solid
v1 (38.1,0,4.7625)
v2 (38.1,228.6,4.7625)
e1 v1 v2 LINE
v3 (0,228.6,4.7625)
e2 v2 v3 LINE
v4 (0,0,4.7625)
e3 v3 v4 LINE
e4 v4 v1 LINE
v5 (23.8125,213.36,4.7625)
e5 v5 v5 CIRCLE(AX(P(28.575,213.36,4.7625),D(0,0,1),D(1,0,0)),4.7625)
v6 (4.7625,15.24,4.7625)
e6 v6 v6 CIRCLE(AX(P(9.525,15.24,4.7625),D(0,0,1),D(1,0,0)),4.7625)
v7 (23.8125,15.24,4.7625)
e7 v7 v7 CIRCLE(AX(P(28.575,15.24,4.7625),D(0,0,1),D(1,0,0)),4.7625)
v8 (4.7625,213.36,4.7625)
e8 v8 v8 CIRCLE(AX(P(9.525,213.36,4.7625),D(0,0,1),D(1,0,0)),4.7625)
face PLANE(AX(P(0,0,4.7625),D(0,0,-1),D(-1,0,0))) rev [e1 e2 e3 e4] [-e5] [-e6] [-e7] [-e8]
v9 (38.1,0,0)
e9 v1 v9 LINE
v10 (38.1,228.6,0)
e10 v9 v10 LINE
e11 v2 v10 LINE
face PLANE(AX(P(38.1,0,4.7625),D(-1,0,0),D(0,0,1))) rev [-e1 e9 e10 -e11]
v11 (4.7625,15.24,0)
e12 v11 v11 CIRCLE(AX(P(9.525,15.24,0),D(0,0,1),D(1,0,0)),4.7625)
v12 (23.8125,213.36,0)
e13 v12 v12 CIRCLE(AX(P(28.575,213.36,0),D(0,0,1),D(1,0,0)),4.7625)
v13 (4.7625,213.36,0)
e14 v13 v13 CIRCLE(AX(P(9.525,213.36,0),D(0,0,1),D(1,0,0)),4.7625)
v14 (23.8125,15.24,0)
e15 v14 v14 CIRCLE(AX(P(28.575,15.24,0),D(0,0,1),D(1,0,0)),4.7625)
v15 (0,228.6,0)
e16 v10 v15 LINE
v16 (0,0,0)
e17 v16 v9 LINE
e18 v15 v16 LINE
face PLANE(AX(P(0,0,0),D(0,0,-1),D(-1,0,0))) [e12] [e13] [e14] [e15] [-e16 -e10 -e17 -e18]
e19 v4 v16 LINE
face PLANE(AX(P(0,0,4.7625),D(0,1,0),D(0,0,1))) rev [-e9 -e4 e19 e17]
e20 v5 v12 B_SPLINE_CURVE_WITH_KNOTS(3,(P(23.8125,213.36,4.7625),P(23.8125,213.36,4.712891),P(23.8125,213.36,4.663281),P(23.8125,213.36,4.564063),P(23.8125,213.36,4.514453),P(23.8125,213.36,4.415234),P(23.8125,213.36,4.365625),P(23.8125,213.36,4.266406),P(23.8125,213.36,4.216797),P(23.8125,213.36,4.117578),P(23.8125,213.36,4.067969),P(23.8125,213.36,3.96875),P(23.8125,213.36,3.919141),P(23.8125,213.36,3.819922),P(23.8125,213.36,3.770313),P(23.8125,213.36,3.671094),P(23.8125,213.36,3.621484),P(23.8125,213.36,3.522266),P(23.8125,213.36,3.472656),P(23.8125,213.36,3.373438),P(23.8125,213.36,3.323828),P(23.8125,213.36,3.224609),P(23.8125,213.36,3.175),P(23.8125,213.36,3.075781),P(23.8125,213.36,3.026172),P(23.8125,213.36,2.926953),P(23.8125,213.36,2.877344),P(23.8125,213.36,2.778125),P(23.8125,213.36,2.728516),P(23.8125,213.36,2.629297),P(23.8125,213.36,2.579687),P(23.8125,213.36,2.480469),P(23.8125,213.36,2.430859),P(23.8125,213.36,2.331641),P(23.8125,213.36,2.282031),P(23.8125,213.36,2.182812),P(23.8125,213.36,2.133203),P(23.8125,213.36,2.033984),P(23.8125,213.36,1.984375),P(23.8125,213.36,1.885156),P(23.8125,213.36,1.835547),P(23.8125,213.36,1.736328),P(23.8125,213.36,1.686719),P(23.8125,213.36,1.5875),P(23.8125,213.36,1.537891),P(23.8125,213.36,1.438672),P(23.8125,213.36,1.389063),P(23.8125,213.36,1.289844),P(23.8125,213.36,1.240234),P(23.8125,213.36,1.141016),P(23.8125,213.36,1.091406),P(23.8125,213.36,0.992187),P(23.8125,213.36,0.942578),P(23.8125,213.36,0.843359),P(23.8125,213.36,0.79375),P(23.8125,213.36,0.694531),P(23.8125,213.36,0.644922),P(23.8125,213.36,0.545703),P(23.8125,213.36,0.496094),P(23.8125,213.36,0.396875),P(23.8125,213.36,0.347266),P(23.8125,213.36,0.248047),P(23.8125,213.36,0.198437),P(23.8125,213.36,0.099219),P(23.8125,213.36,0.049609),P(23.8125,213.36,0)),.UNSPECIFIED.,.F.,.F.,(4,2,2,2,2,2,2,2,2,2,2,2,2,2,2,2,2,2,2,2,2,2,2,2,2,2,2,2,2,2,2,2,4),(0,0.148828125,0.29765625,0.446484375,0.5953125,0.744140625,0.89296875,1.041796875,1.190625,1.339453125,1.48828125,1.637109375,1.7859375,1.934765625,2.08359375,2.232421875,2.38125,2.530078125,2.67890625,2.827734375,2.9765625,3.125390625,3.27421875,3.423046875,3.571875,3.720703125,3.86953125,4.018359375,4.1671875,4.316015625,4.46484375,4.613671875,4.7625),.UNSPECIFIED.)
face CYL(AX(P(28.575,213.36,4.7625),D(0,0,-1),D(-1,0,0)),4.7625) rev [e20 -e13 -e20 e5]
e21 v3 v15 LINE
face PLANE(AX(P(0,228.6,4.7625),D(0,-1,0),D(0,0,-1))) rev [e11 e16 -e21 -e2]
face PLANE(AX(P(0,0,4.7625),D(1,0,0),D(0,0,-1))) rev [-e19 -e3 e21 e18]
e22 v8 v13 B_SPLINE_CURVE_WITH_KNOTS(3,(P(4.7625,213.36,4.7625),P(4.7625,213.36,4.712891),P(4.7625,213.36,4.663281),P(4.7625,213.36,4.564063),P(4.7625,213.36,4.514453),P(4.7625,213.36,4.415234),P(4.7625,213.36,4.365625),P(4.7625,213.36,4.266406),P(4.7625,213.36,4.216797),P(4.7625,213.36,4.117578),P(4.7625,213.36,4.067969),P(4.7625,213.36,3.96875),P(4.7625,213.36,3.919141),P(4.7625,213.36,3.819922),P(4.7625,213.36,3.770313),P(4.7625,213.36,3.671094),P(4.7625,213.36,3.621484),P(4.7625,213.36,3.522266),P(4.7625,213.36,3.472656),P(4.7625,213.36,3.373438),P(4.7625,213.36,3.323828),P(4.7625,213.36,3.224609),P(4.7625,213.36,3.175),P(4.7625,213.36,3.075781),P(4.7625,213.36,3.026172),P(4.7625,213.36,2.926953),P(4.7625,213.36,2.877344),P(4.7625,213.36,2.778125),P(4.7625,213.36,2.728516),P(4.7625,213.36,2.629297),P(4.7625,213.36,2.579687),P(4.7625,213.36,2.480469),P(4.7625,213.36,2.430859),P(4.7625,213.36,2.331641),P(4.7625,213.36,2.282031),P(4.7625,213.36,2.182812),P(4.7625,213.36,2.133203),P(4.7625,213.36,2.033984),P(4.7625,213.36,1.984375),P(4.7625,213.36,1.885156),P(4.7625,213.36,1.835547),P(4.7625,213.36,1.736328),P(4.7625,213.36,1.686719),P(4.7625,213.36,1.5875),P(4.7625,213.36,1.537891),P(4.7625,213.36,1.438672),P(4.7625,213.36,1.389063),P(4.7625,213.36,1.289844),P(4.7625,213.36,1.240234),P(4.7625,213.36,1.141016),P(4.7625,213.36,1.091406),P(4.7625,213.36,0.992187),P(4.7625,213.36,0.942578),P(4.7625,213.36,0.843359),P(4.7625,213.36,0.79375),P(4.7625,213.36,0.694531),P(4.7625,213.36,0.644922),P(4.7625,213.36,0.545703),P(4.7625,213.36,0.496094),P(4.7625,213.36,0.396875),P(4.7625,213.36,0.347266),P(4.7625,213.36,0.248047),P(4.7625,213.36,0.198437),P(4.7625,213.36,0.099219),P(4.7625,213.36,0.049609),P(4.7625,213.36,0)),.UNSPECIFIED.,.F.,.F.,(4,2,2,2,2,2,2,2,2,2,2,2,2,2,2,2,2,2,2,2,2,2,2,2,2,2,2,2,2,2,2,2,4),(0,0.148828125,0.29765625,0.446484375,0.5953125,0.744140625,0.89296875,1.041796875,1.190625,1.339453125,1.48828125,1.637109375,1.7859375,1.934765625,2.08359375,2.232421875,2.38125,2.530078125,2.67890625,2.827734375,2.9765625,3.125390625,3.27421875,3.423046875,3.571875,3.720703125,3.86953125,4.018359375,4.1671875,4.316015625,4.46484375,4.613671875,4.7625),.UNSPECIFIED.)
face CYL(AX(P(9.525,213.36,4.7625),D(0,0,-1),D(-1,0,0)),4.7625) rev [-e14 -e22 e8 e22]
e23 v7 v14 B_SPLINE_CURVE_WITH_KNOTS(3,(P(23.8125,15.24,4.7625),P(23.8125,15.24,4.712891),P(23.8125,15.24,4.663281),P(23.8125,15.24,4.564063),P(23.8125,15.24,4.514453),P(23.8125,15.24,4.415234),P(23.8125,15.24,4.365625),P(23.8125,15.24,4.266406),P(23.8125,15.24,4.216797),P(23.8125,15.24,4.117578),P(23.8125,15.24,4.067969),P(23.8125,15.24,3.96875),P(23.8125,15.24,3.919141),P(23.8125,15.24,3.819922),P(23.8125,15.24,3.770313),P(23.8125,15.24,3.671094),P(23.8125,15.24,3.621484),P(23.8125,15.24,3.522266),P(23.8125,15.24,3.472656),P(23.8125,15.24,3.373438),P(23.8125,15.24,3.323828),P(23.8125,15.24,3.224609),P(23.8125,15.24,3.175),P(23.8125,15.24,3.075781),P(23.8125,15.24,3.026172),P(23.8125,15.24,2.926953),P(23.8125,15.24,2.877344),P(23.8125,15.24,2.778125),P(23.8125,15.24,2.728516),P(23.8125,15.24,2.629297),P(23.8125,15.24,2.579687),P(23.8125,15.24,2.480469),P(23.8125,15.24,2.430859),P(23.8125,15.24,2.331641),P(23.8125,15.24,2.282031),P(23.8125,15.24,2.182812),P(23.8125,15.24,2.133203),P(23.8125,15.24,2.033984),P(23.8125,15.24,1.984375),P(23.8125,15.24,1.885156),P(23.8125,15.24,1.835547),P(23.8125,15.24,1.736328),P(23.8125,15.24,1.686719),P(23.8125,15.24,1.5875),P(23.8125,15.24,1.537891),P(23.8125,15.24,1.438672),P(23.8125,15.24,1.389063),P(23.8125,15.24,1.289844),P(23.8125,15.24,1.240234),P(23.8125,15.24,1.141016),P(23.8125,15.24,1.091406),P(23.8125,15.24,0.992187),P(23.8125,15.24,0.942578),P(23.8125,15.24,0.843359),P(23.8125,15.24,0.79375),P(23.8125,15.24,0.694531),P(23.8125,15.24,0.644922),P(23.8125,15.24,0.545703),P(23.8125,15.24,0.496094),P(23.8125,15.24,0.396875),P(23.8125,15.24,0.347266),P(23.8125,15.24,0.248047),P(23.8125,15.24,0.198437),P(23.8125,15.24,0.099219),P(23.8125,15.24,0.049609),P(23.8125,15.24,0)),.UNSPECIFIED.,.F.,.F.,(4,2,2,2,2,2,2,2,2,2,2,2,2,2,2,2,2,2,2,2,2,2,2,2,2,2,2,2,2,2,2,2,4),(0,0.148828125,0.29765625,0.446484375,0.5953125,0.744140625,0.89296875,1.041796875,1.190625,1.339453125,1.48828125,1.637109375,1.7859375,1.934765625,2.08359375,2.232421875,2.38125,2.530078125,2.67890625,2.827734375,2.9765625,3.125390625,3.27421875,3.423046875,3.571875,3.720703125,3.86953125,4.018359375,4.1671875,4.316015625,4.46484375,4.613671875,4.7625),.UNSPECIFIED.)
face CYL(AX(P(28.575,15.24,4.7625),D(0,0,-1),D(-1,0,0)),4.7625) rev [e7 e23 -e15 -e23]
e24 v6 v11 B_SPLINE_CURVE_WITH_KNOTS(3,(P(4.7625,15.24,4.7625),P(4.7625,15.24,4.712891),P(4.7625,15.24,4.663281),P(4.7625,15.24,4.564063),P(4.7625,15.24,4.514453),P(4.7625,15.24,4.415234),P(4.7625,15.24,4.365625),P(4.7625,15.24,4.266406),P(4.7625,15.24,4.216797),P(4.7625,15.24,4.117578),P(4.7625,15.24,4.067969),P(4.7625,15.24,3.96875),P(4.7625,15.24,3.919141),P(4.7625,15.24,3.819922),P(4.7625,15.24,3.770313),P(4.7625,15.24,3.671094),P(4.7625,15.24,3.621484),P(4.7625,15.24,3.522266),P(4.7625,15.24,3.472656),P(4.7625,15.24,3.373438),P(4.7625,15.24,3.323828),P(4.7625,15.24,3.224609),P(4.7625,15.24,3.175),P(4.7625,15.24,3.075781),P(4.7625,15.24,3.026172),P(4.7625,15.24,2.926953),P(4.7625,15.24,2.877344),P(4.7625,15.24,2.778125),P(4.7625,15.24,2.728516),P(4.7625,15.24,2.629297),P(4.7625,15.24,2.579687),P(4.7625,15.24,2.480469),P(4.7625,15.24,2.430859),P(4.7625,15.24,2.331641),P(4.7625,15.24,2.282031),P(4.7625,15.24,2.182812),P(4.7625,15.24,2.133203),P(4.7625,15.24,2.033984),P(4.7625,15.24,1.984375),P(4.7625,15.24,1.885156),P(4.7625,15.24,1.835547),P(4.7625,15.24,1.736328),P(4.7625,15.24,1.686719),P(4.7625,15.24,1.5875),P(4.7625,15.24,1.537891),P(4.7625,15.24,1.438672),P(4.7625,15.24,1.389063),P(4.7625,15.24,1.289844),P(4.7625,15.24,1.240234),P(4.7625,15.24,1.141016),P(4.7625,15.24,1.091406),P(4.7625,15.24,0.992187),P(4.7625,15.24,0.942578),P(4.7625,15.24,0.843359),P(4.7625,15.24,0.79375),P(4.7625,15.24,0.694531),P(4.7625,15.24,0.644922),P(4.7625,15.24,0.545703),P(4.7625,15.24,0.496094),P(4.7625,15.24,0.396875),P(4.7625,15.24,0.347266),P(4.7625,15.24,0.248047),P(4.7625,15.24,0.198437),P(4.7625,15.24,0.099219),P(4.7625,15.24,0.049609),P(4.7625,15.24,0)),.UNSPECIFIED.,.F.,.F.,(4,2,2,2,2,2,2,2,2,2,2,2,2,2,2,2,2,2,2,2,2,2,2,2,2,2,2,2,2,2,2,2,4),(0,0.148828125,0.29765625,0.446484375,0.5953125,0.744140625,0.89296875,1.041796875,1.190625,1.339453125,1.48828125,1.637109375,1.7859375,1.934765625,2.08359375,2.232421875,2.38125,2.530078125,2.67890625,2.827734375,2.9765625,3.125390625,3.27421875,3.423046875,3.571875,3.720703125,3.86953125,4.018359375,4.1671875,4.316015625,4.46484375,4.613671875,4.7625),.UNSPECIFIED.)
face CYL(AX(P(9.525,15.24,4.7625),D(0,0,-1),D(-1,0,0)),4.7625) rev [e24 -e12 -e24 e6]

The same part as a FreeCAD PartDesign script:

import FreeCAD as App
import Part
import Sketcher

V = App.Vector
Q = App.Units.Quantity

doc = App.newDocument("Part")
body = doc.addObject("PartDesign::Body", "Body")

sketch1 = body.newObject("Sketcher::SketchObject", "Sketch")
sketch1.AttachmentSupport = (doc.getObject("XY_Plane"), [""])
sketch1.MapMode = "FlatFace"
sketch1.addGeometry([
    Part.LineSegment(V(0, 228.6, 0), V(0, 0, 0)),
    Part.LineSegment(V(0, 0, 0), V(38.1, 0, 0)),
    Part.LineSegment(V(38.1, 0, 0), V(38.1, 228.6, 0)),
    Part.LineSegment(V(38.1, 228.6, 0), V(0, 228.6, 0)),
    Part.Circle(V(9.5, 15.2, 0), V(0, 0, 1), 4.8),
    Part.Circle(V(28.6, 15.2, 0), V(0, 0, 1), 4.8),
    Part.Circle(V(9.5, 213.4, 0), V(0, 0, 1), 4.8),
    Part.Circle(V(28.6, 213.4, 0), V(0, 0, 1), 4.8),
], False)
sketch1.addConstraint([
    Sketcher.Constraint("Coincident", 0, 2, 1, 1),
    Sketcher.Constraint("Coincident", 1, 2, 2, 1),
    Sketcher.Constraint("Coincident", 2, 2, 3, 1),
    Sketcher.Constraint("Coincident", 3, 2, 0, 1),
    Sketcher.Constraint("Vertical", 0),
    Sketcher.Constraint("Horizontal", 1),
    Sketcher.Constraint("Vertical", 2),
    Sketcher.Constraint("Horizontal", 3),
    Sketcher.Constraint("Coincident", 0, 2, -1, 1),
    Sketcher.Constraint("Equal", 4, 5),
    Sketcher.Constraint("Equal", 5, 6),
    Sketcher.Constraint("Equal", 6, 7),
    Sketcher.Constraint("Horizontal", 4, 3, 5, 3),
    Sketcher.Constraint("Horizontal", 6, 3, 7, 3),
    Sketcher.Constraint("Vertical", 4, 3, 6, 3),
    Sketcher.Constraint("Vertical", 5, 3, 7, 3),
    Sketcher.Constraint("DistanceY", 0, 2, 0, 1, Q("9 in")),
    Sketcher.Constraint("Diameter", 4, Q("0.375 in")),
    Sketcher.Constraint("DistanceX", 1, 1, 1, 2, Q("1.5 in")),
    Sketcher.Constraint("DistanceY", -1, 1, 4, 3, Q("0.6 in")),
    Sketcher.Constraint("DistanceY", -1, 1, 6, 3, Q("8.4 in")),
    Sketcher.Constraint("DistanceX", 4, 3, 5, 3, Q("0.75 in")),
    Sketcher.Constraint("DistanceX", -1, 1, 4, 3, Q("0.375 in")),
])
pad1 = body.newObject("PartDesign::Pad", "Pad")
pad1.Profile = sketch1
pad1.Length = Q("0.1875 in")

doc.recompute()
